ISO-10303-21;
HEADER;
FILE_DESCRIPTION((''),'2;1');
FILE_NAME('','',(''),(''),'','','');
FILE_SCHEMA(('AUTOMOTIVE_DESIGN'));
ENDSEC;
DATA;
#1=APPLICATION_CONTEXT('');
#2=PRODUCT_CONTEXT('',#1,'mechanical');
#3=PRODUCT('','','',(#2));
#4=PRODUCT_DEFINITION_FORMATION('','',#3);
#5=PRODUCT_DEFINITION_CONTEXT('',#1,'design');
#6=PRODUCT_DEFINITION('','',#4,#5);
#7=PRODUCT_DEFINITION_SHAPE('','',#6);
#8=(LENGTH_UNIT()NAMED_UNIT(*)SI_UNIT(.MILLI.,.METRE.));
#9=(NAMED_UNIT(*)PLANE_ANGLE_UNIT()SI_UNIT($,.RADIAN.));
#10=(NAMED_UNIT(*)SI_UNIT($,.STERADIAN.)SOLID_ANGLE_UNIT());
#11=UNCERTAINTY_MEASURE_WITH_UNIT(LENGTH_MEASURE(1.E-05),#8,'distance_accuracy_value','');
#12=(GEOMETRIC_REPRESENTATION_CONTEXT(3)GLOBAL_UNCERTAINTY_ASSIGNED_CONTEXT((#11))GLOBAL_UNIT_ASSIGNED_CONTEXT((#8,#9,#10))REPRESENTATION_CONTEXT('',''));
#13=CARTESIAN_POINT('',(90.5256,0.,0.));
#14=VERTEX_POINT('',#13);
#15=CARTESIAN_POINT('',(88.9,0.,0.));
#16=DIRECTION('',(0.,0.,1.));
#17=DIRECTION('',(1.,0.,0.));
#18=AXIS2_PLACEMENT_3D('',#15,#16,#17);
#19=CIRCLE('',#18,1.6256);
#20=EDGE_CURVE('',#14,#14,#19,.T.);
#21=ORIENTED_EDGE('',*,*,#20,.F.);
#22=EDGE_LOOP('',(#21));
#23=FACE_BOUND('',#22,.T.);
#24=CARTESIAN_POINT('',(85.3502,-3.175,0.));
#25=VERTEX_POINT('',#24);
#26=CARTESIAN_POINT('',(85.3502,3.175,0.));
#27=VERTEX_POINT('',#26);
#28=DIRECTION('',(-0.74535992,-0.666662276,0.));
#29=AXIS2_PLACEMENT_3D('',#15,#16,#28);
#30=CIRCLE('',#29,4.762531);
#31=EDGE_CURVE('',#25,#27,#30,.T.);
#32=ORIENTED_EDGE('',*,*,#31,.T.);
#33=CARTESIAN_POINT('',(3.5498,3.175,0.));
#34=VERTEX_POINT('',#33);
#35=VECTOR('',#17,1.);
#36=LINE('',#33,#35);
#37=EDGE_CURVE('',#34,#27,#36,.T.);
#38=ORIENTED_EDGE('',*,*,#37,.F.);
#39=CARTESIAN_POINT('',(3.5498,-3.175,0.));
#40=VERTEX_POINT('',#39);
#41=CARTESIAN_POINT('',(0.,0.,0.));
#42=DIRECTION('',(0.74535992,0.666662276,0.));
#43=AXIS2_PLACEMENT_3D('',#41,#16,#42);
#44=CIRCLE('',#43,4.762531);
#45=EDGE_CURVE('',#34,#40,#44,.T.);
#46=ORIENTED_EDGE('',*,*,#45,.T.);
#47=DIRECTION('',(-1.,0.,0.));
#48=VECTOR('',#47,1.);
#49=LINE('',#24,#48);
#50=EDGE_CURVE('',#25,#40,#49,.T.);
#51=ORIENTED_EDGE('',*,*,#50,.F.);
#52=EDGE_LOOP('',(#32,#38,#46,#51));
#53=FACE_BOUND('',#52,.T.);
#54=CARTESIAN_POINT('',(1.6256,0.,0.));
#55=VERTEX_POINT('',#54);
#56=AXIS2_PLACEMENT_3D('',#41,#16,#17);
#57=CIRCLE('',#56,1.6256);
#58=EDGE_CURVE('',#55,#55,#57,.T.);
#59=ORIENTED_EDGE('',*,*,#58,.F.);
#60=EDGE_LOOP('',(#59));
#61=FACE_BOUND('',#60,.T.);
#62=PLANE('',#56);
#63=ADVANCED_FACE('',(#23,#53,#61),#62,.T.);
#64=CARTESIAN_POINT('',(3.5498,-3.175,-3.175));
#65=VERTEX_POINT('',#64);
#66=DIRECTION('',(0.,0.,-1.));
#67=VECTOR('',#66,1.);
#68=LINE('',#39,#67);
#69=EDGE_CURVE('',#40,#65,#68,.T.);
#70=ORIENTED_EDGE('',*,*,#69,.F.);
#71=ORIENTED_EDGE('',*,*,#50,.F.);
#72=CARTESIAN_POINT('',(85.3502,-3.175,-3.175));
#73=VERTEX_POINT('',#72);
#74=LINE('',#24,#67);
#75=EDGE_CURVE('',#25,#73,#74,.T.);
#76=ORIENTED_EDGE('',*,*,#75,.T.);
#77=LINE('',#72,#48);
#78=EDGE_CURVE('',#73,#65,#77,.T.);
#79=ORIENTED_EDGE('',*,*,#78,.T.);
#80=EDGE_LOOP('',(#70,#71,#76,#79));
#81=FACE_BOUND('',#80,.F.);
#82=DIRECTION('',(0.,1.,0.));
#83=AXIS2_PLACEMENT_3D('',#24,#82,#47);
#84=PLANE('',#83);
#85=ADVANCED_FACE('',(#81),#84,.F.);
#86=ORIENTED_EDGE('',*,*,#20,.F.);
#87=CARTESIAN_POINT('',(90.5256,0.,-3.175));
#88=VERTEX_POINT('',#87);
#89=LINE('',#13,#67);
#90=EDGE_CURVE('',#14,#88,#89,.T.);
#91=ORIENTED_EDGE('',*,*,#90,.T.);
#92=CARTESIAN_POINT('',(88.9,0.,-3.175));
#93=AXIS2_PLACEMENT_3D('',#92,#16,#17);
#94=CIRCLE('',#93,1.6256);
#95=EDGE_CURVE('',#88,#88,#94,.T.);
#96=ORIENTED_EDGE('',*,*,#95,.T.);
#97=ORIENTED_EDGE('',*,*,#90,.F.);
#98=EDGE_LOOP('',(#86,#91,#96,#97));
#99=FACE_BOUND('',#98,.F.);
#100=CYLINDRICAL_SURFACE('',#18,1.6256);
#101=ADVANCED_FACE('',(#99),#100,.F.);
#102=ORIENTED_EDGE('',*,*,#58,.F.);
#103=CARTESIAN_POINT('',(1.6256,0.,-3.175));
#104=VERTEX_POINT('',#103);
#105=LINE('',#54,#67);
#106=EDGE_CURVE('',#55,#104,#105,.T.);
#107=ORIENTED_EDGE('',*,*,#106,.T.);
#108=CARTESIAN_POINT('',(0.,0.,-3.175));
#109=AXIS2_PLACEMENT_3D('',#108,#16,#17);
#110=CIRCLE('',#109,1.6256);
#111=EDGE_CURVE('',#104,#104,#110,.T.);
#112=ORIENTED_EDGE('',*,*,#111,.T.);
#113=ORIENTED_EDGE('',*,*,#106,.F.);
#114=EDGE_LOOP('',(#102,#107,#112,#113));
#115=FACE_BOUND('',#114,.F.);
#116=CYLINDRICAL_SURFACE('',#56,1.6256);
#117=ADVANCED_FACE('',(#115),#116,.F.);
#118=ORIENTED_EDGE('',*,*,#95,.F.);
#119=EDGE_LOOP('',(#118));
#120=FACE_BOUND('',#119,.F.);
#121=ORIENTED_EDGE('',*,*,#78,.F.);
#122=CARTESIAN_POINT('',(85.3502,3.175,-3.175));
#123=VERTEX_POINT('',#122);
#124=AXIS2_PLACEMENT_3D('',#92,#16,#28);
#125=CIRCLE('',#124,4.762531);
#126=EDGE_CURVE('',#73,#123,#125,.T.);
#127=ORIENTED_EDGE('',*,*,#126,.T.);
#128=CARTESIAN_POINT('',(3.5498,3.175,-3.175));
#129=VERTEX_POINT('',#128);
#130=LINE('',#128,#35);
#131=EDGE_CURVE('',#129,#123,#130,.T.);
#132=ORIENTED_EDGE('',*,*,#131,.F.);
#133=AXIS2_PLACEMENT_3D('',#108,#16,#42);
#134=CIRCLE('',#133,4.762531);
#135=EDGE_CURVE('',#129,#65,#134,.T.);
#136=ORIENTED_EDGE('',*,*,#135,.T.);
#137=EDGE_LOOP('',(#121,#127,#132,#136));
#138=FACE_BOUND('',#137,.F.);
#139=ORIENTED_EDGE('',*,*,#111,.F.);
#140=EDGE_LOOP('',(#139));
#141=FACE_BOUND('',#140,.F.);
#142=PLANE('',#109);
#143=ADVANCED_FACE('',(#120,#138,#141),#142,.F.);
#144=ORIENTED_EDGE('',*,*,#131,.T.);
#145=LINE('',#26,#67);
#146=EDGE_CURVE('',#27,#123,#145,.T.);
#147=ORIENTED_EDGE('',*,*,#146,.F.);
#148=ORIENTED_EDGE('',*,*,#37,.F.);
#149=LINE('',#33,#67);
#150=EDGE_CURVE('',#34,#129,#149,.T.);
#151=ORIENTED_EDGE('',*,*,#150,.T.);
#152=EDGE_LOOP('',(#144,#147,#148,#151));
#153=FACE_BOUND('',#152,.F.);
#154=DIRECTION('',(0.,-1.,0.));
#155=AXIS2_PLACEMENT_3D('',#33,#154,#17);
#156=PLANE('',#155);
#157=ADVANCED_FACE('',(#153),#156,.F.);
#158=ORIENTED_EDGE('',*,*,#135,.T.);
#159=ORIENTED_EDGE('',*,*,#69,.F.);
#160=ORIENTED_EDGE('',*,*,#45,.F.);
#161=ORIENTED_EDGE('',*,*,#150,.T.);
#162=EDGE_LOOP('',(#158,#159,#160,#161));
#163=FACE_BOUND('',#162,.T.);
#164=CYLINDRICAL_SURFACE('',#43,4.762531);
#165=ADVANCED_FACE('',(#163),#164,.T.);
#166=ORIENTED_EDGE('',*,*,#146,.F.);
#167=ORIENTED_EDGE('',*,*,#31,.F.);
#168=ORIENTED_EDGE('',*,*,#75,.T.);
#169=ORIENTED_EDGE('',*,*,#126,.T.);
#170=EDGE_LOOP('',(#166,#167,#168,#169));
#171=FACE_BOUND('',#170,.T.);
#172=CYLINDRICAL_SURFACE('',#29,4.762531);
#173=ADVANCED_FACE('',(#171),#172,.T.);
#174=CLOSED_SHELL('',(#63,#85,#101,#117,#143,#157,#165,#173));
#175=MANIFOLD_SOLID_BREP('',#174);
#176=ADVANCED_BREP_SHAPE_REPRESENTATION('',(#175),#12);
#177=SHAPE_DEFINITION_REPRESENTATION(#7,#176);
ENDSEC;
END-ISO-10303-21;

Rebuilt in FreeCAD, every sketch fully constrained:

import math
import FreeCAD as App
import Part
import Sketcher

V = App.Vector
Q = App.Units.Quantity

doc = App.newDocument("Part")
body = doc.addObject("PartDesign::Body", "Body")

sketch1 = body.newObject("Sketcher::SketchObject", "Sketch")
sketch1.AttachmentSupport = (doc.getObject("XY_Plane"), [""])
sketch1.MapMode = "FlatFace"
sketch1.addGeometry([
    Part.ArcOfCircle(Part.Circle(V(0, 0, 0), V(0, 0, 1), 4.8), math.radians(42), math.radians(318)),
    Part.LineSegment(V(3.5, -3.2, 0), V(85.4, -3.2, 0)),
    Part.ArcOfCircle(Part.Circle(V(88.9, 0, 0), V(0, 0, 1), 4.8), math.radians(-138), math.radians(138)),
    Part.LineSegment(V(85.4, 3.2, 0), V(3.5, 3.2, 0)),
    Part.Circle(V(0, 0, 0), V(0, 0, 1), 1.6),
    Part.Circle(V(88.9, 0, 0), V(0, 0, 1), 1.6),
], False)
sketch1.addConstraint([
    Sketcher.Constraint("Coincident", 0, 2, 1, 1),
    Sketcher.Constraint("Coincident", 1, 2, 2, 1),
    Sketcher.Constraint("Coincident", 2, 2, 3, 1),
    Sketcher.Constraint("Coincident", 3, 2, 0, 1),
    Sketcher.Constraint("Horizontal", 1),
    Sketcher.Constraint("Horizontal", 3),
    Sketcher.Constraint("Coincident", 0, 3, -1, 1),
    Sketcher.Constraint("Coincident", 4, 3, -1, 1),
    Sketcher.Constraint("Coincident", 5, 3, 2, 3),
    Sketcher.Constraint("Equal", 0, 2),
    Sketcher.Constraint("Equal", 4, 5),
    Sketcher.Constraint("Symmetric", 1, 2, 2, 2, -1),
    Sketcher.Constraint("Diameter", 4, Q("0.128 in")),
    Sketcher.Constraint("Radius", 0, Q("0.1875 in")),
    Sketcher.Constraint("DistanceX", -1, 1, 2, 3, Q("3.5 in")),
    Sketcher.Constraint("DistanceY", 1, 2, 2, 2, Q("0.25 in")),
])
pad1 = body.newObject("PartDesign::Pad", "Pad")
pad1.Profile = sketch1
pad1.Length = Q("0.125 in")
pad1.Reversed = True

doc.recompute()
